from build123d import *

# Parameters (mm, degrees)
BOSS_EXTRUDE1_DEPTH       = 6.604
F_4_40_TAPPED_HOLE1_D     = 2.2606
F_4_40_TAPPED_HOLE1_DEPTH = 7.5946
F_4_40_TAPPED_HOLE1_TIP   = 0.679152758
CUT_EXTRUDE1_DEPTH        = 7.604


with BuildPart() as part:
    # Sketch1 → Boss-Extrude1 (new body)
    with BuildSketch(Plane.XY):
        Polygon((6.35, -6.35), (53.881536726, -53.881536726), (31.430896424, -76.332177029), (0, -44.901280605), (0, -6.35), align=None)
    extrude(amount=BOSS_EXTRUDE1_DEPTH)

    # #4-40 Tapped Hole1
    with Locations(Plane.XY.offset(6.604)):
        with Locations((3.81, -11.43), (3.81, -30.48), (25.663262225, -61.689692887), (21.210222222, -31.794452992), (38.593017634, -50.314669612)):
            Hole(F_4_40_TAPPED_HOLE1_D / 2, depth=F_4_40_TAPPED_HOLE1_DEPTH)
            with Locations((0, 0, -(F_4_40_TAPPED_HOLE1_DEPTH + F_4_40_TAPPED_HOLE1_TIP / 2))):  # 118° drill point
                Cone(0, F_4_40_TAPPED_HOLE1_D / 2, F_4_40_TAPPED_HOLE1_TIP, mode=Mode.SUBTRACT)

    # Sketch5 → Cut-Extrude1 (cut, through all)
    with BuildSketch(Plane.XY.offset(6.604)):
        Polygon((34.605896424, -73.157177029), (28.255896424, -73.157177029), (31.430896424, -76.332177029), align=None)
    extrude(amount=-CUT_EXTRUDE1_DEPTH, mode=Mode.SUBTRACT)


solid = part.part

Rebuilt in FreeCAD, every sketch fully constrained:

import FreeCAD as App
import Part
import Sketcher

V = App.Vector
Q = App.Units.Quantity


def add_polygon(sketch, points):
    """Adds a closed chain of lines whose ends are joined by coincident constraints."""
    first, n = sketch.GeometryCount, len(points)
    for a, b in zip(points, points[1:] + points[:1]):
        sketch.addGeometry(Part.LineSegment(App.Vector(*a, 0), App.Vector(*b, 0)), False)
    for i in range(n):
        sketch.addConstraint(Sketcher.Constraint("Coincident", first + i, 2, first + (i + 1) % n, 1))

doc = App.newDocument("Part")
body = doc.addObject("PartDesign::Body", "Body")

sketch1 = body.newObject("Sketcher::SketchObject", "Sketch")
sketch1.AttachmentSupport = (doc.getObject("XY_Plane"), [""])
sketch1.MapMode = "FlatFace"
add_polygon(sketch1, [(54, -54), (6, -6), (0, -6), (0, -45), (31, -76)])
sketch1.addConstraint(Sketcher.Constraint("Horizontal", 1))
sketch1.addConstraint(Sketcher.Constraint("Vertical", 2))
sketch1.addConstraint(Sketcher.Constraint("PointOnObject", 1, 2, -2))
sketch1.addConstraint(Sketcher.Constraint("Parallel", 0, 3))
sketch1.addConstraint(Sketcher.Constraint("Perpendicular", 3, 4))
sketch1.addConstraint(Sketcher.Constraint("Angle", 0, Q("135 deg")))
sketch1.addConstraint(Sketcher.Constraint("DistanceX", 1, 2, 1, 1, Q("0.25 in")))
sketch1.addConstraint(Sketcher.Constraint("Distance", 3, Q("1.75 in")))
sketch1.addConstraint(Sketcher.Constraint("Distance", 4, Q("1.25 in")))
sketch1.addConstraint(Sketcher.Constraint("DistanceY", 0, 2, -1, 1, Q("0.25 in")))
pad1 = body.newObject("PartDesign::Pad", "Pad")
pad1.Profile = sketch1
pad1.Length = Q("0.26 in")

sketch2 = body.newObject("Sketcher::SketchObject", "Sketch001")
sketch2.AttachmentSupport = (doc.getObject("XY_Plane"), [""])
sketch2.MapMode = "FlatFace"
sketch2.AttachmentOffset = App.Placement(V(0, 0, 0.26 * 25.4), App.Rotation())
sketch2.addGeometry(Part.Circle(V(3.8, -11.4, 0), V(0, 0, 1), 1.1), False)
sketch2.addGeometry(Part.Circle(V(3.8, -30.5, 0), V(0, 0, 1), 1.1), False)
sketch2.addGeometry(Part.Circle(V(25.7, -61.7, 0), V(0, 0, 1), 1.1), False)
sketch2.addGeometry(Part.Circle(V(21.2, -31.8, 0), V(0, 0, 1), 1.1), False)
sketch2.addGeometry(Part.Circle(V(38.6, -50.3, 0), V(0, 0, 1), 1.1), False)
sketch2.addConstraint(Sketcher.Constraint("Equal", 0, 1))
sketch2.addConstraint(Sketcher.Constraint("Equal", 1, 2))
sketch2.addConstraint(Sketcher.Constraint("Equal", 2, 3))
sketch2.addConstraint(Sketcher.Constraint("Equal", 3, 4))
sketch2.addConstraint(Sketcher.Constraint("Vertical", 0, 3, 1, 3))
sketch2.addConstraint(Sketcher.Constraint("Diameter", 0, Q("0.089 in")))
sketch2.addConstraint(Sketcher.Constraint("DistanceY", 1, 3, -1, 1, Q("1.2 in")))
sketch2.addConstraint(Sketcher.Constraint("DistanceX", -1, 1, 0, 3, Q("0.15 in")))
sketch2.addConstraint(Sketcher.Constraint("DistanceY", 0, 3, -1, 1, Q("0.45 in")))
sketch2.addConstraint(Sketcher.Constraint("DistanceY", 4, 3, -1, 1, Q("50.31467 mm")))
sketch2.addConstraint(Sketcher.Constraint("DistanceX", 3, 3, 2, 3, Q("4.45304 mm")))
sketch2.addConstraint(Sketcher.Constraint("DistanceY", 2, 3, 3, 3, Q("29.89524 mm")))
sketch2.addConstraint(Sketcher.Constraint("DistanceX", -1, 1, 2, 3, Q("25.663262 mm")))
sketch2.addConstraint(Sketcher.Constraint("DistanceY", 2, 3, -1, 1, Q("61.689693 mm")))
sketch2.addConstraint(Sketcher.Constraint("DistanceX", -1, 1, 4, 3, Q("38.593018 mm")))
doc.recompute()
hole = body.newObject("PartDesign::Hole", "Hole")
hole.Profile = sketch2
hole.ThreadType = "None"
hole.Diameter = Q("0.089 in")
hole.DepthType = "Dimension"
hole.Depth = Q("0.299 in")
hole.DrillPoint = "Angled"
hole.DrillPointAngle = 118

sketch3 = body.newObject("Sketcher::SketchObject", "Sketch002")
sketch3.AttachmentSupport = (doc.getObject("XY_Plane"), [""])
sketch3.MapMode = "FlatFace"
sketch3.AttachmentOffset = App.Placement(V(0, 0, 0.26 * 25.4), App.Rotation())
add_polygon(sketch3, [(34.6, -73.2), (28.3, -73.2), (31.4, -76.3)])
sketch3.addConstraint(Sketcher.Constraint("Horizontal", 0))
sketch3.addConstraint(Sketcher.Constraint("Perpendicular", 1, 2))
sketch3.addConstraint(Sketcher.Constraint("Equal", 1, 2))
sketch3.addConstraint(Sketcher.Constraint("DistanceX", 0, 2, 0, 1, Q("0.25 in")))
sketch3.addConstraint(Sketcher.Constraint("DistanceX", -1, 1, 0, 2, Q("28.255896 mm")))
sketch3.addConstraint(Sketcher.Constraint("DistanceY", 0, 2, -1, 1, Q("73.157177 mm")))
pocket1 = body.newObject("PartDesign::Pocket", "Pocket")
pocket1.Profile = sketch3
pocket1.Type = "ThroughAll"

doc.recompute()
